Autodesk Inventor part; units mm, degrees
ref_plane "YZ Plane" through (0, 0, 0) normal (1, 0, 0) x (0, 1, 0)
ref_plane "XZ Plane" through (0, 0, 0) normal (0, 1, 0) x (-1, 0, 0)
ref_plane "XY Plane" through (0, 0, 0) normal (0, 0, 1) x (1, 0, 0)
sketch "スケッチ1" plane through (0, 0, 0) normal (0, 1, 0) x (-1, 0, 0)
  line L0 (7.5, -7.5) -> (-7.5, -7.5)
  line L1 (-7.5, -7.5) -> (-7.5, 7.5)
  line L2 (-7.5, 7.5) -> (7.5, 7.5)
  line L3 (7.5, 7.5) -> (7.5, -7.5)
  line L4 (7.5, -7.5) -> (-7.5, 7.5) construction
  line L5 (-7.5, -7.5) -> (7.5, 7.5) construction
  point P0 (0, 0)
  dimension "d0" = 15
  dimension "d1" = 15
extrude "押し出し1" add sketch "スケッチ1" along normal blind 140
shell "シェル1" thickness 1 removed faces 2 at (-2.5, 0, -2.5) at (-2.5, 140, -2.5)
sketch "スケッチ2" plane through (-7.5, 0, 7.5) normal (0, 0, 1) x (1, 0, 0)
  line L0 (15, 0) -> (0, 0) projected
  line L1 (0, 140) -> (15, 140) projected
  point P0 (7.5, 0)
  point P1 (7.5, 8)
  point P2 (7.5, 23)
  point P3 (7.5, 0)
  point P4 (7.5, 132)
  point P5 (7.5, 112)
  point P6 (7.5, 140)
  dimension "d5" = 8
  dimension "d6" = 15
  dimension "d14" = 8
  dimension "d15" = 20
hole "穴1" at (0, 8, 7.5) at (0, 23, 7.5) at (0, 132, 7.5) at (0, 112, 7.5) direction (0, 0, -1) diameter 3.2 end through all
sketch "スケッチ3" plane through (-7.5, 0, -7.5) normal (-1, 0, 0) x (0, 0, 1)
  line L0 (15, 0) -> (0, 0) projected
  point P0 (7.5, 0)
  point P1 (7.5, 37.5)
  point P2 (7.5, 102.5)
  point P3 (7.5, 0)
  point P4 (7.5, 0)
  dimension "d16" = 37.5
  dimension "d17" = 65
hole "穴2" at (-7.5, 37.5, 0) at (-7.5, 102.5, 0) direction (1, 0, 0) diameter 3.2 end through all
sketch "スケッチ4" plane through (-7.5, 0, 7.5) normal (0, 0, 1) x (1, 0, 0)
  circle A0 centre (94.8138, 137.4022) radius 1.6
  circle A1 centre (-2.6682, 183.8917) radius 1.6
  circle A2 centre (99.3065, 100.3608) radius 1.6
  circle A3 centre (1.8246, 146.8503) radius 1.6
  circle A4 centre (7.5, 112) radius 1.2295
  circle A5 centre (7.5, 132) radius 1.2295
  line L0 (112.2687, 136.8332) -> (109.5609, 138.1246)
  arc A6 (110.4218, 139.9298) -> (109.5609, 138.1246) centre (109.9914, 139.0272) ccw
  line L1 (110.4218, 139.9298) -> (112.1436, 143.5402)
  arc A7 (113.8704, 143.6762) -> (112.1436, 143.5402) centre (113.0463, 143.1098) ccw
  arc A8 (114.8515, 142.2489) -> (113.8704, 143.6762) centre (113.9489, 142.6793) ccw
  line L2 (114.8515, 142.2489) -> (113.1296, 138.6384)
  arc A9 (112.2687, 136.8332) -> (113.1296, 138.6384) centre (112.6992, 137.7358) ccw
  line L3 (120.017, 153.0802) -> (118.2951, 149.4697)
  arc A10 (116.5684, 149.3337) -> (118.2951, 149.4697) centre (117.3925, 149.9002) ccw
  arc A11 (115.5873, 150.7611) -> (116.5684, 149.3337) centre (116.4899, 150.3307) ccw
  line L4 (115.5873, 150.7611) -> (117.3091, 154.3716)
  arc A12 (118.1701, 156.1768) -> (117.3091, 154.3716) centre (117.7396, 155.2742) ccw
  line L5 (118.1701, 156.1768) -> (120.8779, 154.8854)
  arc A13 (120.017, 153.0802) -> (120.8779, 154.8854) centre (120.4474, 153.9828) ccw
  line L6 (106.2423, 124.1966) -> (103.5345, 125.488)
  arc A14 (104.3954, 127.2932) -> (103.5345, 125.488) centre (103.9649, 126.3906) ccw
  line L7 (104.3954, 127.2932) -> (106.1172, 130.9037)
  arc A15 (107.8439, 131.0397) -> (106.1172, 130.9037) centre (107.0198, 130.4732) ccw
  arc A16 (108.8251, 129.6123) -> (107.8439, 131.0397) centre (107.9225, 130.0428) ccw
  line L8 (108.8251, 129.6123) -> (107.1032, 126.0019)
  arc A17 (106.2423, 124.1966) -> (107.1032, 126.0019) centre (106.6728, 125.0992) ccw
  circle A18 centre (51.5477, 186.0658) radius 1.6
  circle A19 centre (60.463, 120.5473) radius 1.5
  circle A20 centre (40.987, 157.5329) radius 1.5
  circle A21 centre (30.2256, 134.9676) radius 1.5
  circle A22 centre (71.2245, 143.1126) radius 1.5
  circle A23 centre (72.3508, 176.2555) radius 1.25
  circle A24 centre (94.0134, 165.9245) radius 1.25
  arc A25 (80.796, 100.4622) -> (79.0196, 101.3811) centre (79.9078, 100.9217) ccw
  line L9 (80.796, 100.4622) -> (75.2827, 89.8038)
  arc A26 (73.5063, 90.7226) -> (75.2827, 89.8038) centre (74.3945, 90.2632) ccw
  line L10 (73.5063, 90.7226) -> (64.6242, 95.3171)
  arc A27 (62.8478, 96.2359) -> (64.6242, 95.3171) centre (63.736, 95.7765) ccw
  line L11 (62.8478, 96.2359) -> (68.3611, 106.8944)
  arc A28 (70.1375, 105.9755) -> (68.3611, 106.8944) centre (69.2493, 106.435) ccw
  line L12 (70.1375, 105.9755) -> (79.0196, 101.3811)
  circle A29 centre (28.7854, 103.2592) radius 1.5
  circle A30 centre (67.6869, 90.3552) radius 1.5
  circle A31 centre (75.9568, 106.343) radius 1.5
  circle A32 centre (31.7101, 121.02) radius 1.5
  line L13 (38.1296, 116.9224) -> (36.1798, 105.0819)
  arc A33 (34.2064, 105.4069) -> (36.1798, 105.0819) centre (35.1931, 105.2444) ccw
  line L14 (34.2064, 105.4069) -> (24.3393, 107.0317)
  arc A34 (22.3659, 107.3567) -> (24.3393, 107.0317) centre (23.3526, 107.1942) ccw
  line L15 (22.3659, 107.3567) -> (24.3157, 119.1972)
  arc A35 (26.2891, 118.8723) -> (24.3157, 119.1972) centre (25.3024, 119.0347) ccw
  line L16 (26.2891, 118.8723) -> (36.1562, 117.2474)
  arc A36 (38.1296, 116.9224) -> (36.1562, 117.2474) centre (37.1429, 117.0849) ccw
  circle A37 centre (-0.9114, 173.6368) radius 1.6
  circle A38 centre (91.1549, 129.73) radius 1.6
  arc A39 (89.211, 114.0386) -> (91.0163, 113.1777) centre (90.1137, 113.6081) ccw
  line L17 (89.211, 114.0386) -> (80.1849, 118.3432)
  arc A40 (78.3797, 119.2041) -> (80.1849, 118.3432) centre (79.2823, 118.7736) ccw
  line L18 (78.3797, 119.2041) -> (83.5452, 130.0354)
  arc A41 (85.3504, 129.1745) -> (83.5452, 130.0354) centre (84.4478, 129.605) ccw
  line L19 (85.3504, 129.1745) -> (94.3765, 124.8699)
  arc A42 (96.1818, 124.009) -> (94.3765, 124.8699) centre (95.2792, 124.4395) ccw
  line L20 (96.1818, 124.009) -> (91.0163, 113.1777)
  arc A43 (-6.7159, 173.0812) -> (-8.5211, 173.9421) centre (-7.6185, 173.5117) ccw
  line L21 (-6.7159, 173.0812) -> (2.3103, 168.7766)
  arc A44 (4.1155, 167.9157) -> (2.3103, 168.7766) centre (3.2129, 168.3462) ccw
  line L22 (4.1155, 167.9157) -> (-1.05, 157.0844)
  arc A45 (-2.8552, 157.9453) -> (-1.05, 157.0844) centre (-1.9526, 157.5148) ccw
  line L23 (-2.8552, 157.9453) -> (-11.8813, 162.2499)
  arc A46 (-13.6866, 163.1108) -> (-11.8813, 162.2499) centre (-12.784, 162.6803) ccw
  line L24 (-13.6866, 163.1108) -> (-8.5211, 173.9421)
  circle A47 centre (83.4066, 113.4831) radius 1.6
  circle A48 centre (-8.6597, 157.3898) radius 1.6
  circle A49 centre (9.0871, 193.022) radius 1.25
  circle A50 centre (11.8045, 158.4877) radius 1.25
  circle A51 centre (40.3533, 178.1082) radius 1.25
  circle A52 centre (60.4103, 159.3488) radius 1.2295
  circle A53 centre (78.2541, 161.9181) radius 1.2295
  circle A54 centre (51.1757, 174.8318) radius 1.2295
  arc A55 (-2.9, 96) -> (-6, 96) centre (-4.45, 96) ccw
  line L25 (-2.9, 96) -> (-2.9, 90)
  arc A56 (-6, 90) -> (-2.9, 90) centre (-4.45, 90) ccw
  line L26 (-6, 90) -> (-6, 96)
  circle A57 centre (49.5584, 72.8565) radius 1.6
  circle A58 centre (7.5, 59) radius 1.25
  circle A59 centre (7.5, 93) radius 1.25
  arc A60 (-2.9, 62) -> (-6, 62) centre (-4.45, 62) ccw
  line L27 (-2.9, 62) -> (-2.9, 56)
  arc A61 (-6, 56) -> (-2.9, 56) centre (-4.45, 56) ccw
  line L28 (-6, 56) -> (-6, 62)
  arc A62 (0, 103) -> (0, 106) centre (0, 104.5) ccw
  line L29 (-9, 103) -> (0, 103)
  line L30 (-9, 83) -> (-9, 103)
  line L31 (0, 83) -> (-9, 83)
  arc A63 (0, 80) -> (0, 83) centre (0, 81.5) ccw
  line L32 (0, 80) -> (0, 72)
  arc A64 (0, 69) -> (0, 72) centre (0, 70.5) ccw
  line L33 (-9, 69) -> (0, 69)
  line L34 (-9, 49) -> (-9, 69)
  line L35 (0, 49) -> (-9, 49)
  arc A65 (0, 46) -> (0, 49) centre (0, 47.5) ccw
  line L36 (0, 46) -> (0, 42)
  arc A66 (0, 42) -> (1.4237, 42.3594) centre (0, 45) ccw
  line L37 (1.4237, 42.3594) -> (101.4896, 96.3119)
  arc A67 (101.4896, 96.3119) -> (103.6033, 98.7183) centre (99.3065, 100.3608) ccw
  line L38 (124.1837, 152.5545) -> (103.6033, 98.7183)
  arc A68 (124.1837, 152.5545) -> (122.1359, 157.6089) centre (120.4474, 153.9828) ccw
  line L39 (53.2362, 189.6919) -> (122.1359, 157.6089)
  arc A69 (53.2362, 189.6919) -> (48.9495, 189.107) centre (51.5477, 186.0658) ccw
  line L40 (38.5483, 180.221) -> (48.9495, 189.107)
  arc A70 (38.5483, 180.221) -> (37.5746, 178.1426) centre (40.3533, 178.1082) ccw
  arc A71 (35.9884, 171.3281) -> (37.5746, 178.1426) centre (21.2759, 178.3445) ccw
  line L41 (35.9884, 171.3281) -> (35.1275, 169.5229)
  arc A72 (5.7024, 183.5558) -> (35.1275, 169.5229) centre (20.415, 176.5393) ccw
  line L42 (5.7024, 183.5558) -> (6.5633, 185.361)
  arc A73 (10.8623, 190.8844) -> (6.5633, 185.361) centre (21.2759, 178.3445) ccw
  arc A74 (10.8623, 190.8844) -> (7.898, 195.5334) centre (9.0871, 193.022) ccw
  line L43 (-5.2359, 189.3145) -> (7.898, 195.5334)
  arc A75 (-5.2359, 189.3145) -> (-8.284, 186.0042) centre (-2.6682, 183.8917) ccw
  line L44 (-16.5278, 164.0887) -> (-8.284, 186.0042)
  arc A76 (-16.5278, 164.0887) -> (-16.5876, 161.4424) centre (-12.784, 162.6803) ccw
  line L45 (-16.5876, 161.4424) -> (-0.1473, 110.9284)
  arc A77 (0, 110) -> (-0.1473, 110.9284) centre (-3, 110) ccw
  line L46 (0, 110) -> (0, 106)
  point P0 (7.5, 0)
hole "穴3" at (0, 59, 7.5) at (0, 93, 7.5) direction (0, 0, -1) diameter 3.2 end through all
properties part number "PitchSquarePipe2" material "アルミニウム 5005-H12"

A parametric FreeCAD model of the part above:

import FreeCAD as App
import Part
import Sketcher

V = App.Vector


def faces_at(feature, points):
    """Names of the faces that lie closest to the given points."""
    faces = feature.Shape.Faces
    near = lambda p: min(range(len(faces)), key=lambda i: faces[i].distToShape(Part.Vertex(*p))[0])
    return sorted({f"Face{near(p) + 1}" for p in points})

doc = App.newDocument("Part")
body = doc.addObject("PartDesign::Body", "Body")

sketch1 = body.newObject("Sketcher::SketchObject", "Sketch")
sketch1.AttachmentSupport = (doc.getObject("XZ_Plane"), [""])
sketch1.MapMode = "FlatFace"
sketch1.addGeometry([
    Part.LineSegment(V(8, -8, 0), V(-8, -8, 0)),
    Part.LineSegment(V(-8, -8, 0), V(-8, 8, 0)),
    Part.LineSegment(V(-8, 8, 0), V(8, 8, 0)),
    Part.LineSegment(V(8, 8, 0), V(8, -8, 0)),
], False)
sketch1.addConstraint([
    Sketcher.Constraint("Coincident", 0, 2, 1, 1),
    Sketcher.Constraint("Coincident", 1, 2, 2, 1),
    Sketcher.Constraint("Coincident", 2, 2, 3, 1),
    Sketcher.Constraint("Coincident", 3, 2, 0, 1),
    Sketcher.Constraint("Horizontal", 0),
    Sketcher.Constraint("Vertical", 1),
    Sketcher.Constraint("Horizontal", 2),
    Sketcher.Constraint("Vertical", 3),
    Sketcher.Constraint("Symmetric", 0, 2, 2, 2, -1, 1),
    Sketcher.Constraint("Equal", 2, 1),
    Sketcher.Constraint("DistanceX", 0, 2, 0, 1, 15.0),
])
pad1 = body.newObject("PartDesign::Pad", "Pad")
pad1.Profile = sketch1
pad1.Length = 140
pad1.Reversed = True
doc.recompute()

thickness = body.newObject("PartDesign::Thickness", "Thickness")
thickness.Base = (pad1, faces_at(pad1, [(-2.5, 0, -2.5), (-2.5, 140, -2.5)]))
thickness.Value = 1
thickness.Reversed = True
thickness.Join = "Intersection"

sketch2 = body.newObject("Sketcher::SketchObject", "Sketch001")
sketch2.AttachmentSupport = (doc.getObject("XY_Plane"), [""])
sketch2.MapMode = "FlatFace"
sketch2.AttachmentOffset = App.Placement(V(0, 0, 7.5), App.Rotation())
sketch2.addGeometry([
    Part.Circle(V(0, 8, 0), V(0, 0, 1), 1.6),
    Part.Circle(V(0, 23, 0), V(0, 0, 1), 1.6),
    Part.Circle(V(0, 132, 0), V(0, 0, 1), 1.6),
    Part.Circle(V(0, 112, 0), V(0, 0, 1), 1.6),
], False)
sketch2.addConstraint([
    Sketcher.Constraint("Equal", 0, 1),
    Sketcher.Constraint("Equal", 1, 2),
    Sketcher.Constraint("Equal", 2, 3),
    Sketcher.Constraint("PointOnObject", 0, 3, -2),
    Sketcher.Constraint("PointOnObject", 1, 3, -2),
    Sketcher.Constraint("PointOnObject", 2, 3, -2),
    Sketcher.Constraint("PointOnObject", 3, 3, -2),
    Sketcher.Constraint("Diameter", 0, 3.2),
    Sketcher.Constraint("DistanceY", -1, 1, 0, 3, 8.0),
    Sketcher.Constraint("DistanceY", -1, 1, 1, 3, 23.0),
    Sketcher.Constraint("DistanceY", -1, 1, 2, 3, 132.0),
    Sketcher.Constraint("DistanceY", -1, 1, 3, 3, 112.0),
])
doc.recompute()
hole = body.newObject("PartDesign::Hole", "Hole")
hole.Profile = sketch2
hole.ThreadType = "None"
hole.Diameter = 3.2
hole.DepthType = "ThroughAll"

sketch3 = body.newObject("Sketcher::SketchObject", "Sketch002")
sketch3.AttachmentSupport = (doc.getObject("YZ_Plane"), [""])
sketch3.MapMode = "FlatFace"
sketch3.AttachmentOffset = App.Placement(V(0, 0, -7.5), App.Rotation())
sketch3.addGeometry([
    Part.Circle(V(37.5, 0, 0), V(0, 0, 1), 1.6),
    Part.Circle(V(102.5, 0, 0), V(0, 0, 1), 1.6),
], False)
sketch3.addConstraint([
    Sketcher.Constraint("Equal", 0, 1),
    Sketcher.Constraint("PointOnObject", 0, 3, -1),
    Sketcher.Constraint("PointOnObject", 1, 3, -1),
    Sketcher.Constraint("Diameter", 0, 3.2),
    Sketcher.Constraint("DistanceX", 0, 3, 1, 3, 65.0),
    Sketcher.Constraint("DistanceX", -1, 1, 0, 3, 37.5),
])
doc.recompute()
hole2 = body.newObject("PartDesign::Hole", "Hole001")
hole2.Profile = sketch3
hole2.ThreadType = "None"
hole2.Diameter = 3.2
hole2.DepthType = "ThroughAll"
hole2.Reversed = True

sketch4 = body.newObject("Sketcher::SketchObject", "Sketch003")
sketch4.AttachmentSupport = (doc.getObject("XY_Plane"), [""])
sketch4.MapMode = "FlatFace"
sketch4.AttachmentOffset = App.Placement(V(0, 0, 7.5), App.Rotation())
sketch4.addGeometry([
    Part.Circle(V(0, 59, 0), V(0, 0, 1), 1.6),
    Part.Circle(V(0, 93, 0), V(0, 0, 1), 1.6),
], False)
sketch4.addConstraint([
    Sketcher.Constraint("Equal", 0, 1),
    Sketcher.Constraint("PointOnObject", 0, 3, -2),
    Sketcher.Constraint("PointOnObject", 1, 3, -2),
    Sketcher.Constraint("Diameter", 0, 3.2),
    Sketcher.Constraint("DistanceY", -1, 1, 0, 3, 59.0),
    Sketcher.Constraint("DistanceY", -1, 1, 1, 3, 93.0),
])
doc.recompute()
hole3 = body.newObject("PartDesign::Hole", "Hole002")
hole3.Profile = sketch4
hole3.ThreadType = "None"
hole3.Diameter = 3.2
hole3.DepthType = "ThroughAll"

doc.recompute()
